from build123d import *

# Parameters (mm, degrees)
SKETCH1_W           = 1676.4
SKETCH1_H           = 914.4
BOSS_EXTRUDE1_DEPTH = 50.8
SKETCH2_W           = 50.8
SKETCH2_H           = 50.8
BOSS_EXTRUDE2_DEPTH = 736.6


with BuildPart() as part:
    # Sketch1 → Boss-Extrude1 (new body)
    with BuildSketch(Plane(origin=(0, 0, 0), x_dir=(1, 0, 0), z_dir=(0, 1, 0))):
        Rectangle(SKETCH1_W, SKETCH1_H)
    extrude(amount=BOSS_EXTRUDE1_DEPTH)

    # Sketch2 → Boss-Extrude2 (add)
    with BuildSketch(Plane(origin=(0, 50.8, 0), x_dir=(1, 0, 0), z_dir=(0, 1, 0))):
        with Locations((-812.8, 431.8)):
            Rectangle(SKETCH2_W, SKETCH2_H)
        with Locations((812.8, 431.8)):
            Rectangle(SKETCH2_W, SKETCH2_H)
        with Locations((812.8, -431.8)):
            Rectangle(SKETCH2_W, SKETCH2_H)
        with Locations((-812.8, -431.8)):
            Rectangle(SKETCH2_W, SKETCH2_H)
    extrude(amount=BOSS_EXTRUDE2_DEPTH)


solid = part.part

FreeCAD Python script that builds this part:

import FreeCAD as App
import Part
import Sketcher

V = App.Vector
Q = App.Units.Quantity


def add_polygon(sketch, points):
    """Adds a closed chain of lines whose ends are joined by coincident constraints."""
    first, n = sketch.GeometryCount, len(points)
    for a, b in zip(points, points[1:] + points[:1]):
        sketch.addGeometry(Part.LineSegment(App.Vector(*a, 0), App.Vector(*b, 0)), False)
    for i in range(n):
        sketch.addConstraint(Sketcher.Constraint("Coincident", first + i, 2, first + (i + 1) % n, 1))

doc = App.newDocument("Part")
body = doc.addObject("PartDesign::Body", "Body")

sketch1 = body.newObject("Sketcher::SketchObject", "Sketch")
sketch1.AttachmentSupport = (doc.getObject("XZ_Plane"), [""])
sketch1.MapMode = "FlatFace"
add_polygon(sketch1, [(-838, -457), (-838, 457), (838, 457), (838, -457)])
sketch1.addConstraint(Sketcher.Constraint("Vertical", 0))
sketch1.addConstraint(Sketcher.Constraint("Horizontal", 1))
sketch1.addConstraint(Sketcher.Constraint("Vertical", 2))
sketch1.addConstraint(Sketcher.Constraint("Horizontal", 3))
sketch1.addConstraint(Sketcher.Constraint("Symmetric", 0, 2, 2, 2, -1, 1))
sketch1.addConstraint(Sketcher.Constraint("DistanceX", 1, 1, 1, 2, Q("66 in")))
sketch1.addConstraint(Sketcher.Constraint("DistanceY", 0, 1, 0, 2, Q("36 in")))
pad1 = body.newObject("PartDesign::Pad", "Pad")
pad1.Profile = sketch1
pad1.Length = Q("2 in")
pad1.Reversed = True

sketch2 = body.newObject("Sketcher::SketchObject", "Sketch001")
sketch2.AttachmentSupport = (doc.getObject("XZ_Plane"), [""])
sketch2.MapMode = "FlatFace"
sketch2.AttachmentOffset = App.Placement(V(0, 0, -2 * 25.4), App.Rotation())
add_polygon(sketch2, [(-838, -457), (-838, -406), (-787, -406), (-787, -457)])
add_polygon(sketch2, [(787, -457), (787, -406), (838, -406), (838, -457)])
add_polygon(sketch2, [(787, 406), (787, 457), (838, 457), (838, 406)])
add_polygon(sketch2, [(-838, 406), (-838, 457), (-787, 457), (-787, 406)])
sketch2.addConstraint(Sketcher.Constraint("Vertical", 0))
sketch2.addConstraint(Sketcher.Constraint("Horizontal", 1))
sketch2.addConstraint(Sketcher.Constraint("Vertical", 2))
sketch2.addConstraint(Sketcher.Constraint("Horizontal", 3))
sketch2.addConstraint(Sketcher.Constraint("Vertical", 4))
sketch2.addConstraint(Sketcher.Constraint("Horizontal", 5))
sketch2.addConstraint(Sketcher.Constraint("Vertical", 6))
sketch2.addConstraint(Sketcher.Constraint("Horizontal", 7))
sketch2.addConstraint(Sketcher.Constraint("Vertical", 8))
sketch2.addConstraint(Sketcher.Constraint("Horizontal", 9))
sketch2.addConstraint(Sketcher.Constraint("Vertical", 10))
sketch2.addConstraint(Sketcher.Constraint("Horizontal", 11))
sketch2.addConstraint(Sketcher.Constraint("Vertical", 12))
sketch2.addConstraint(Sketcher.Constraint("Horizontal", 13))
sketch2.addConstraint(Sketcher.Constraint("Vertical", 14))
sketch2.addConstraint(Sketcher.Constraint("Horizontal", 15))
sketch2.addConstraint(Sketcher.Constraint("Symmetric", 2, 2, 8, 2, -1, 1))
sketch2.addConstraint(Sketcher.Constraint("Symmetric", 0, 2, 10, 2, -1, 1))
sketch2.addConstraint(Sketcher.Constraint("Symmetric", 6, 2, 12, 2, -1, 1))
sketch2.addConstraint(Sketcher.Constraint("Symmetric", 4, 2, 14, 2, -1, 1))
sketch2.addConstraint(Sketcher.Constraint("Symmetric", 1, 2, 4, 2, -2))
sketch2.addConstraint(Sketcher.Constraint("Symmetric", 3, 2, 6, 2, -2))
sketch2.addConstraint(Sketcher.Constraint("Equal", 15, 0))
sketch2.addConstraint(Sketcher.Constraint("DistanceX", 1, 1, 1, 2, Q("2 in")))
sketch2.addConstraint(Sketcher.Constraint("DistanceX", 0, 2, -1, 1, Q("33 in")))
sketch2.addConstraint(Sketcher.Constraint("DistanceY", 0, 2, -1, 1, Q("16 in")))
pad2 = body.newObject("PartDesign::Pad", "Pad001")
pad2.Profile = sketch2
pad2.Length = Q("29 in")
pad2.Reversed = True

doc.recompute()
